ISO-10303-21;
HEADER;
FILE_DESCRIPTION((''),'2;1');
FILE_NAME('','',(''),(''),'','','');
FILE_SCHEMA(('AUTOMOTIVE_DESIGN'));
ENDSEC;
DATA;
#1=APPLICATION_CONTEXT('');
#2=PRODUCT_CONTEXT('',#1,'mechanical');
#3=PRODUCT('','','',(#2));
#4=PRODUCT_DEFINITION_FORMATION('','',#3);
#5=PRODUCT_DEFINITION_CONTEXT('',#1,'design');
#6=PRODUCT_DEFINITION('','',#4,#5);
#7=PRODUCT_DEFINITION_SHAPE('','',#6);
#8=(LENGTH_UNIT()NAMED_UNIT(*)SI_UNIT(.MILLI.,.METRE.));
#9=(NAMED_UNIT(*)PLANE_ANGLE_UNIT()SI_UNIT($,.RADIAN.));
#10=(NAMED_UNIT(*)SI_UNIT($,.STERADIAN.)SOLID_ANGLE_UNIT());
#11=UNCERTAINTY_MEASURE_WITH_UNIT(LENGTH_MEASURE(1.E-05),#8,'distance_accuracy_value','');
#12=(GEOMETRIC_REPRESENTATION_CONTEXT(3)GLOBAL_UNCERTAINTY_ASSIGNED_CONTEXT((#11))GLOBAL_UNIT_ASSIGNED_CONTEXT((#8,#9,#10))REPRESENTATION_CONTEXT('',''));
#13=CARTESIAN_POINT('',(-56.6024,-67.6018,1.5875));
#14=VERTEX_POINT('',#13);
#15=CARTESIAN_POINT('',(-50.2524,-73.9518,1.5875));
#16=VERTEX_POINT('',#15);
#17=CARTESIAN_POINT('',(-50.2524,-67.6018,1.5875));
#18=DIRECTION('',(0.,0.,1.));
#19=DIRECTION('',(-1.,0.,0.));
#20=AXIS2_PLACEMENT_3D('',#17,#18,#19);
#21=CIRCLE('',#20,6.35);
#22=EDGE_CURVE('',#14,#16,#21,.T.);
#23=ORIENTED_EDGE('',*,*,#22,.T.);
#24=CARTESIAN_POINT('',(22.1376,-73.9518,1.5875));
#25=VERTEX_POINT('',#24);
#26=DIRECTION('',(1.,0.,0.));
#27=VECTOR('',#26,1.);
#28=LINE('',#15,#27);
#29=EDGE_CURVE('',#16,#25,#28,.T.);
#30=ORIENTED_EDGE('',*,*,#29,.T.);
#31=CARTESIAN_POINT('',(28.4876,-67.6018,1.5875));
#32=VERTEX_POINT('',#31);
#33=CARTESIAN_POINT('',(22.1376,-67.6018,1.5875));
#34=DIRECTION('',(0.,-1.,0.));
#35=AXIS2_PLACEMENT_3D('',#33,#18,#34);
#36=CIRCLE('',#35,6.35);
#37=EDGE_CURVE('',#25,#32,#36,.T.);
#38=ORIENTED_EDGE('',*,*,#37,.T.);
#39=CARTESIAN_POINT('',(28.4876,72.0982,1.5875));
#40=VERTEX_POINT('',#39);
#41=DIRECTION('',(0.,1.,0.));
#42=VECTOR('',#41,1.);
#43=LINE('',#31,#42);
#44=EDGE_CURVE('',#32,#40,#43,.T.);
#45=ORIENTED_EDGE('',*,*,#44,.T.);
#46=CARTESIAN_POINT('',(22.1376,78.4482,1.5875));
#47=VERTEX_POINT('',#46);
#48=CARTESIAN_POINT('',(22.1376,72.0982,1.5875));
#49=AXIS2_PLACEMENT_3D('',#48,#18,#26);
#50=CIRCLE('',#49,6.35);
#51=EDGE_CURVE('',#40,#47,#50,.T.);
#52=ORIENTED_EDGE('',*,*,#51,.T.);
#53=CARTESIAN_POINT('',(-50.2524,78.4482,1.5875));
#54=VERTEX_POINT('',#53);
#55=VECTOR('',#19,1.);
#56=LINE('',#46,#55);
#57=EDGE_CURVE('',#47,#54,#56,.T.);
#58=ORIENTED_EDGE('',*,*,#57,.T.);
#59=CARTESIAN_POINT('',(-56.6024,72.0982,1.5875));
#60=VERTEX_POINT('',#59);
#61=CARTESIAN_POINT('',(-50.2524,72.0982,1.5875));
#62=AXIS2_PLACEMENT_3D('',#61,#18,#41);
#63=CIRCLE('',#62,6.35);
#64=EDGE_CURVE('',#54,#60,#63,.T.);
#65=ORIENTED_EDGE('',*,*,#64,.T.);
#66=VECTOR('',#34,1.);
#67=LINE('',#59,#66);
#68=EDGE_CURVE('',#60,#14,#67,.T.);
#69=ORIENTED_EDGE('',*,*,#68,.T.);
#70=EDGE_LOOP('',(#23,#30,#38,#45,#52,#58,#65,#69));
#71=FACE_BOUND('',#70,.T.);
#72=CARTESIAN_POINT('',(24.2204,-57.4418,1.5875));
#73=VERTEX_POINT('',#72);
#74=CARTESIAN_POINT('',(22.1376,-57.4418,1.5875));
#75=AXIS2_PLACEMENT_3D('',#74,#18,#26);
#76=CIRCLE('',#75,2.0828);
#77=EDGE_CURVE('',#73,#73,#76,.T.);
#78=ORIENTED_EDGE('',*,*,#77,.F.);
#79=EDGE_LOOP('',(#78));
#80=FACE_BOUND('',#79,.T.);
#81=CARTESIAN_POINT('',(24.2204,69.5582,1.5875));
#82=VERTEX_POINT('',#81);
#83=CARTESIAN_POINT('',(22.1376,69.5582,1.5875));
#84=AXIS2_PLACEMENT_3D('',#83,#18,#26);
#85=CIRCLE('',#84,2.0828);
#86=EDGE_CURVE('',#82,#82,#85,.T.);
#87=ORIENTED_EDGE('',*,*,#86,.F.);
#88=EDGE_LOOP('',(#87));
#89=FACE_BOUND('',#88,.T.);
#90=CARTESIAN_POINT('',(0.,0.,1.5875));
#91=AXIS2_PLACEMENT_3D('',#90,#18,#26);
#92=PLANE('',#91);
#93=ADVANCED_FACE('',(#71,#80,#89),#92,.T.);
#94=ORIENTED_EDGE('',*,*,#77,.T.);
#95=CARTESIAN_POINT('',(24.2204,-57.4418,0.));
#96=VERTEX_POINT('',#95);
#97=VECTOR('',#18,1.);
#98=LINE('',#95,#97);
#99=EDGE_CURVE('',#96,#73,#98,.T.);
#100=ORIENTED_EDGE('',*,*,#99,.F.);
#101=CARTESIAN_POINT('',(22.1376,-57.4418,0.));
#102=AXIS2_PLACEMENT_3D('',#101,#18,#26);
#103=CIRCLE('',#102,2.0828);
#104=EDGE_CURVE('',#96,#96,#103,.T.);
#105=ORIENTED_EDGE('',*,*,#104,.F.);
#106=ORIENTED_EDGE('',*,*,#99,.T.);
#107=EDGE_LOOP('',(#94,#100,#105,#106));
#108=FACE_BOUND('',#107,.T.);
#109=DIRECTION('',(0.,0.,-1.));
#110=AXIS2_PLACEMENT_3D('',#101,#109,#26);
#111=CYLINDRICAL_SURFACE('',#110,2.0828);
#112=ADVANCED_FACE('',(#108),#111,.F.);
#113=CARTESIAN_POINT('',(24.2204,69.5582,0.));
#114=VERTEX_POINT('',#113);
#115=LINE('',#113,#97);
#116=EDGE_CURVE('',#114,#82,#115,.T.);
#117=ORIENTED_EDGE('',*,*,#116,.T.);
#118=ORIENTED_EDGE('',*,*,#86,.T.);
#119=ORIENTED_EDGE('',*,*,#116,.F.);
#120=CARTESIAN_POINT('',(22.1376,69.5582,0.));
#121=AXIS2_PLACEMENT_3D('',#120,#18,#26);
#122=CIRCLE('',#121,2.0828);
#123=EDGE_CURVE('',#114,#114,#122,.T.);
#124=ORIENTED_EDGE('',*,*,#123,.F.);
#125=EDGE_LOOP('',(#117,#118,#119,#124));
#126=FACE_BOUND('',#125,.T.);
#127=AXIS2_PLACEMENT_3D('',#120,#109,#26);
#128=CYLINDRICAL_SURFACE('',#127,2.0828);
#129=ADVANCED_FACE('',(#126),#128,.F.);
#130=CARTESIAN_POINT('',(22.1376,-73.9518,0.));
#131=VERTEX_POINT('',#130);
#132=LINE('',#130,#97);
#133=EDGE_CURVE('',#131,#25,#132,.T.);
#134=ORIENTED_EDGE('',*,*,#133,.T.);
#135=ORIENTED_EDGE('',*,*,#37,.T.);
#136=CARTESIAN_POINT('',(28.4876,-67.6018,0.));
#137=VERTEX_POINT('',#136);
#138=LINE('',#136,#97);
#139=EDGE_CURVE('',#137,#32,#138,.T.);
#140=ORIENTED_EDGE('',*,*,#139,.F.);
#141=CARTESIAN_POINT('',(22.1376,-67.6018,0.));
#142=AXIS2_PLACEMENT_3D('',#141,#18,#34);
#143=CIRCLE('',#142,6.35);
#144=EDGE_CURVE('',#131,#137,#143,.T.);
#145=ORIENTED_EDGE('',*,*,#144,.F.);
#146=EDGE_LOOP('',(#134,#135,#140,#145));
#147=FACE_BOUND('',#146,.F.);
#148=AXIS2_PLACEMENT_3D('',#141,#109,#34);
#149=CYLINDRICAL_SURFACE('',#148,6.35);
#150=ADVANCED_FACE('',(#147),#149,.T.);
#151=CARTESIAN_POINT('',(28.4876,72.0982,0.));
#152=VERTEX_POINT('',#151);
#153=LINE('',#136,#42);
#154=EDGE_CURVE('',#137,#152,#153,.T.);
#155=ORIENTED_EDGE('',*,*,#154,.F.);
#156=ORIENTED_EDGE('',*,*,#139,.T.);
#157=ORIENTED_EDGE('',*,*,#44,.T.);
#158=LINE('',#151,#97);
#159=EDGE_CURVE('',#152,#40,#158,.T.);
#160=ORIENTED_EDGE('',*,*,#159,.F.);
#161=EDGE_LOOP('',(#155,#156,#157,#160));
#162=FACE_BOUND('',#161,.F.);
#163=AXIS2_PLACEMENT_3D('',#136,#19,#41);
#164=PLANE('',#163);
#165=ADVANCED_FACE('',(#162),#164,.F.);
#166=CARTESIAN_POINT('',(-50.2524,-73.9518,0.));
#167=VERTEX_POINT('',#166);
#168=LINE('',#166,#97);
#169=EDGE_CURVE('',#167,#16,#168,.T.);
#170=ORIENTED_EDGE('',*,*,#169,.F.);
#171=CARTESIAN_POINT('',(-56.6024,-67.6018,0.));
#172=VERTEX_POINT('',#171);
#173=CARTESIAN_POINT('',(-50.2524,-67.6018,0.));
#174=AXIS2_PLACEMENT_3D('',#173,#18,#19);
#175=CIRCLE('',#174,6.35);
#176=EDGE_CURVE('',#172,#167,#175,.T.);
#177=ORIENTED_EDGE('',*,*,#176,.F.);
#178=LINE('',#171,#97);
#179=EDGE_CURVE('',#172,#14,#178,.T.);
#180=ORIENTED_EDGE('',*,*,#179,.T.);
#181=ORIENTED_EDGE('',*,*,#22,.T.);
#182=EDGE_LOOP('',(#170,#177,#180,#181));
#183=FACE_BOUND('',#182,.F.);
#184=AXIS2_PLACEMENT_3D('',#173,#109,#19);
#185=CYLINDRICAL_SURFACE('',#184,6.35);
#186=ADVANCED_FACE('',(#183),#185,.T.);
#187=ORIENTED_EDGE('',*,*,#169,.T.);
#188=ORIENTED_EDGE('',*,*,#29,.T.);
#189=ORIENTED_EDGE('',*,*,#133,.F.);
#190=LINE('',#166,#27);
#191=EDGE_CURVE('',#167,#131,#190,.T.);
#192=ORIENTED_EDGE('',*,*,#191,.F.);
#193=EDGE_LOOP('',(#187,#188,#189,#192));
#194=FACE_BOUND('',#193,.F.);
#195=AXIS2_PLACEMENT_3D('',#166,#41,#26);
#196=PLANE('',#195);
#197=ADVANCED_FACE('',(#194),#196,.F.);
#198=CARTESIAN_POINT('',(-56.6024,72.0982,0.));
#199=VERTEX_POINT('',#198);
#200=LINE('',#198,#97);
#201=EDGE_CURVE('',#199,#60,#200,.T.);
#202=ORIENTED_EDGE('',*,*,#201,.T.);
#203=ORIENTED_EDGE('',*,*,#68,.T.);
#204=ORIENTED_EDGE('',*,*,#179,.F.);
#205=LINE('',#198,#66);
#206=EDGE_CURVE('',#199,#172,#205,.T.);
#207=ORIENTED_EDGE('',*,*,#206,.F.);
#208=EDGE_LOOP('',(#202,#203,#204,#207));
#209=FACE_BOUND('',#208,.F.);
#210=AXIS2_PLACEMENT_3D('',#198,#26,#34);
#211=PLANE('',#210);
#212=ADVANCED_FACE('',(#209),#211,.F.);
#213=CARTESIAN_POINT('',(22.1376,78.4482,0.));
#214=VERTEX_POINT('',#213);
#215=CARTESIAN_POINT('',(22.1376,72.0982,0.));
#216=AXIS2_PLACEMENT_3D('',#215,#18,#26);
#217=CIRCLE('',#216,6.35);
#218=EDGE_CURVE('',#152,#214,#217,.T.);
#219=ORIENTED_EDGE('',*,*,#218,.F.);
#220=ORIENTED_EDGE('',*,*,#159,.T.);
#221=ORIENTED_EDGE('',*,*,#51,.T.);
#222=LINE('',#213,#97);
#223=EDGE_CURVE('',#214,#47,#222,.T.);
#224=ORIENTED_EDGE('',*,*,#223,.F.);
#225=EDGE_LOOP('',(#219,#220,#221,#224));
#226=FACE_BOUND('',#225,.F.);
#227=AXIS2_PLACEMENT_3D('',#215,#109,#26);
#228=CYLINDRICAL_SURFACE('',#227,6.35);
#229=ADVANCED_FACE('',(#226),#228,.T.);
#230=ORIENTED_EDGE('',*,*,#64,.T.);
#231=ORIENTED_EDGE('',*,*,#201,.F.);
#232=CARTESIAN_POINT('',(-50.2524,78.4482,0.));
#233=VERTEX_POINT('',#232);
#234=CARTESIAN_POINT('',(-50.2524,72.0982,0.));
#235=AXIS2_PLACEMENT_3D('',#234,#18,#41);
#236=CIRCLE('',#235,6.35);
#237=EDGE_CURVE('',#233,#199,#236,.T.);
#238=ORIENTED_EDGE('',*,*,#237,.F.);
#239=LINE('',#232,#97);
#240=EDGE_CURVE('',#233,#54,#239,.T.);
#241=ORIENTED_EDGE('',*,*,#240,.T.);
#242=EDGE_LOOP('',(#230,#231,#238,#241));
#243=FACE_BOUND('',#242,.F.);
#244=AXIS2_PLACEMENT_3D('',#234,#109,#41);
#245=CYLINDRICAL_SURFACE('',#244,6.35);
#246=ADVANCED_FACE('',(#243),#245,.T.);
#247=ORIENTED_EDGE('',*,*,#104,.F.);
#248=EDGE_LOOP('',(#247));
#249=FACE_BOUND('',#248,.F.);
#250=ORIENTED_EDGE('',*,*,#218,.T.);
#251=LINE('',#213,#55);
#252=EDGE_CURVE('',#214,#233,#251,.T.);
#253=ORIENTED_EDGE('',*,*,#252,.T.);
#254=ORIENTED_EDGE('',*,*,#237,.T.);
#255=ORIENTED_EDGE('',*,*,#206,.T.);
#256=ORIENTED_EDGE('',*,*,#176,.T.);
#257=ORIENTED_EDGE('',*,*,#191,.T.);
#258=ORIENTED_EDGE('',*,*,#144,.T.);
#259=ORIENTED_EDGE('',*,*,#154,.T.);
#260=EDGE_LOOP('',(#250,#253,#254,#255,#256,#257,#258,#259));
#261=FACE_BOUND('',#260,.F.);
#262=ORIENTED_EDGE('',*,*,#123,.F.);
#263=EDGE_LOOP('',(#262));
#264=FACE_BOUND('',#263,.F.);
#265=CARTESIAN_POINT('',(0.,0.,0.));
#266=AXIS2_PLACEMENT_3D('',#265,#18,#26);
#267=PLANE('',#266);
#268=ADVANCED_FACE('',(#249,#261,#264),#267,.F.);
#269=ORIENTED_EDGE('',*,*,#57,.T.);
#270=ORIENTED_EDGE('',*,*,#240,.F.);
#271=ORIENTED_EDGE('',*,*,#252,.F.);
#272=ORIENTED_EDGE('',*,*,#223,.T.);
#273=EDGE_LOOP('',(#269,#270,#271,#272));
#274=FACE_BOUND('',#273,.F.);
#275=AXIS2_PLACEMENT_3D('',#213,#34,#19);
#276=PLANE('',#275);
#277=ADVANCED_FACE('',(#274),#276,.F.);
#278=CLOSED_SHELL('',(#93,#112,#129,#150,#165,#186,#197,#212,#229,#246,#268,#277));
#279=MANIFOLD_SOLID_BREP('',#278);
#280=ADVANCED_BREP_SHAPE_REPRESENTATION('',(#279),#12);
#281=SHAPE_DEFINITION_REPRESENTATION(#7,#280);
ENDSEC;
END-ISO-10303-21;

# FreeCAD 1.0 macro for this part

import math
import FreeCAD as App
import Part
import Sketcher
Q = App.Units.Quantity

doc = App.newDocument("Part")
body = doc.addObject("PartDesign::Body", "Body")

# Sketch on XY plane
sketch1 = doc.addObject("Sketcher::SketchObject", "Sketch")
body.addObject(sketch1)
sketch1.AttachmentSupport = (doc.XY_Plane, [""])
sketch1.MapMode = "FlatFace"
sketch1.addGeometry([
    Part.ArcOfCircle(Part.Circle(App.Vector(-50.3, -67.6, 0), App.Vector(0, 0, 1), 6.4), math.radians(180), math.radians(270)),  # 0
    Part.LineSegment(App.Vector(-50.3, -74, 0), App.Vector(22.1, -74, 0)),  # 1
    Part.ArcOfCircle(Part.Circle(App.Vector(22.1, -67.6, 0), App.Vector(0, 0, 1), 6.4), math.radians(-90), math.radians(0)),  # 2
    Part.LineSegment(App.Vector(28.5, -67.6, 0), App.Vector(28.5, 72.1, 0)),  # 3
    Part.ArcOfCircle(Part.Circle(App.Vector(22.1, 72.1, 0), App.Vector(0, 0, 1), 6.4), math.radians(0), math.radians(90)),  # 4
    Part.LineSegment(App.Vector(22.1, 78.4, 0), App.Vector(-50.3, 78.4, 0)),  # 5
    Part.ArcOfCircle(Part.Circle(App.Vector(-50.3, 72.1, 0), App.Vector(0, 0, 1), 6.3), math.radians(90), math.radians(180)),  # 6
    Part.LineSegment(App.Vector(-56.6, 72.1, 0), App.Vector(-56.6, -67.6, 0)),  # 7
    Part.Circle(App.Vector(22.1, -57.4, 0), App.Vector(0, 0, 1), 2.1),  # 8
    Part.Circle(App.Vector(22.1, 69.6, 0), App.Vector(0, 0, 1), 2.1),  # 9
], False)
sketch1.addConstraint([
    Sketcher.Constraint("Tangent", 0, 2, 1, 1),
    Sketcher.Constraint("Tangent", 1, 2, 2, 1),
    Sketcher.Constraint("Tangent", 2, 2, 3, 1),
    Sketcher.Constraint("Tangent", 3, 2, 4, 1),
    Sketcher.Constraint("Tangent", 4, 2, 5, 1),
    Sketcher.Constraint("Tangent", 5, 2, 6, 1),
    Sketcher.Constraint("Tangent", 6, 2, 7, 1),
    Sketcher.Constraint("Tangent", 7, 2, 0, 1),
    Sketcher.Constraint("Horizontal", 1),
    Sketcher.Constraint("Vertical", 3),
    Sketcher.Constraint("Horizontal", 5),
    Sketcher.Constraint("Vertical", 7),
    Sketcher.Constraint("Equal", 0, 2),
    Sketcher.Constraint("Equal", 2, 4),
    Sketcher.Constraint("Equal", 4, 6),
    Sketcher.Constraint("Equal", 8, 9),
    Sketcher.Constraint("Vertical", 4, 3, 8, 3),
    Sketcher.Constraint("Vertical", 8, 3, 9, 3),
    Sketcher.Constraint("Radius", 0, Q("0.25 in")),
    Sketcher.Constraint("Diameter", 8, Q("0.164 in")),
    Sketcher.Constraint("DistanceY", 8, 3, 9, 3, Q("5 in")),
    Sketcher.Constraint("DistanceY", 0, 2, 8, 3, Q("0.65 in")),
    Sketcher.Constraint("DistanceY", 3, 1, 3, 2, Q("5.5 in")),
    Sketcher.Constraint("DistanceX", 1, 1, 1, 2, Q("2.85 in")),
    Sketcher.Constraint("DistanceY", 0, 3, -1, 1, Q("2.6615 in")),
    Sketcher.Constraint("DistanceX", 0, 3, -1, 1, 50.2524),
])
pad1 = doc.addObject("PartDesign::Pad", "Pad")
body.addObject(pad1)
pad1.Profile = sketch1
pad1.Length = Q("0.0625 in")

doc.recompute()
